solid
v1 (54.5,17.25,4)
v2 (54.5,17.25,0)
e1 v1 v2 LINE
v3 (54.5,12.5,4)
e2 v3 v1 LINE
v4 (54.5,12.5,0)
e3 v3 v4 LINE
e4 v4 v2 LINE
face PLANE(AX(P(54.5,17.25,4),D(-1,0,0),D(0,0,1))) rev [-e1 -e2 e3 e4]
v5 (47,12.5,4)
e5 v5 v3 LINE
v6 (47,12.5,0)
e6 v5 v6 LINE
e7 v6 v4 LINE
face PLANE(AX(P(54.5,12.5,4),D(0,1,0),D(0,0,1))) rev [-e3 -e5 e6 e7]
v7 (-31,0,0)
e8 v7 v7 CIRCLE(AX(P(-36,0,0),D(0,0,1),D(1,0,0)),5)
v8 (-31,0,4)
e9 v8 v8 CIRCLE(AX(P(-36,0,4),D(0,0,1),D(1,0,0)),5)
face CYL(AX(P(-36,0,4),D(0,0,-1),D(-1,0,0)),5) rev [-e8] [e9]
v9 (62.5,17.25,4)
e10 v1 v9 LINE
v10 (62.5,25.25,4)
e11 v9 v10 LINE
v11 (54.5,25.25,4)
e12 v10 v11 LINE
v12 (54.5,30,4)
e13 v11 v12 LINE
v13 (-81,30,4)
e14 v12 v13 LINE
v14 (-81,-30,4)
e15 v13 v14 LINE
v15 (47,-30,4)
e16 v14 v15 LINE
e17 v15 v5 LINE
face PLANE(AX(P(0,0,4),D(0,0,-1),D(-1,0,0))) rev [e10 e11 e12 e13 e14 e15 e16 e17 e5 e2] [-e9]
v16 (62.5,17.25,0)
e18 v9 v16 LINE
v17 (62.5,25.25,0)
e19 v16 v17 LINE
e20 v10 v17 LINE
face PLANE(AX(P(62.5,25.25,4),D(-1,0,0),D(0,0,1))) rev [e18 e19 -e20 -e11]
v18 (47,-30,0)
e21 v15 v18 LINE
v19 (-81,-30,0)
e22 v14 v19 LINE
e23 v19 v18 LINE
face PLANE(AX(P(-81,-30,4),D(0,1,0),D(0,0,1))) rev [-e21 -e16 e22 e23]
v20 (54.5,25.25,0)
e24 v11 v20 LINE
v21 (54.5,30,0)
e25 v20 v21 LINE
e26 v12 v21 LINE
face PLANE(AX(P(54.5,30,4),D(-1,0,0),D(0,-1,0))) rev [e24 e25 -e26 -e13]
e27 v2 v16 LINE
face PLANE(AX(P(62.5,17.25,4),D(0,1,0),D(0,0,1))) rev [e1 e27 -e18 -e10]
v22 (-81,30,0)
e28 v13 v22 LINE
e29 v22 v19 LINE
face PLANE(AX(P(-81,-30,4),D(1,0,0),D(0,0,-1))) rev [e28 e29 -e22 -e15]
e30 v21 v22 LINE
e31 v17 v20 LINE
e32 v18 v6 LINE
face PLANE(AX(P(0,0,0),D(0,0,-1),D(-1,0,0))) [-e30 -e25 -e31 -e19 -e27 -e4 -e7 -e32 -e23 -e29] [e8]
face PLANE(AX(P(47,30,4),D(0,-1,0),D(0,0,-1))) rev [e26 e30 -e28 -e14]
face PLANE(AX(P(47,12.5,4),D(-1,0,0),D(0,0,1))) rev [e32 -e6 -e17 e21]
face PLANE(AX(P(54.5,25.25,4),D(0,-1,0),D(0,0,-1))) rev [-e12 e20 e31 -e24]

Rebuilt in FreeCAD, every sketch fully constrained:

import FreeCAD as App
import Part
import Sketcher

V = App.Vector
Q = App.Units.Quantity


def add_polygon(sketch, points):
    """Adds a closed chain of lines whose ends are joined by coincident constraints."""
    first, n = sketch.GeometryCount, len(points)
    for a, b in zip(points, points[1:] + points[:1]):
        sketch.addGeometry(Part.LineSegment(App.Vector(*a, 0), App.Vector(*b, 0)), False)
    for i in range(n):
        sketch.addConstraint(Sketcher.Constraint("Coincident", first + i, 2, first + (i + 1) % n, 1))

doc = App.newDocument("Part")
body = doc.addObject("PartDesign::Body", "Body")

sketch1 = doc.addObject("Sketcher::SketchObject", "Sketch")
body.addObject(sketch1)
sketch1.AttachmentSupport = (doc.XY_Plane, [""])
sketch1.MapMode = "FlatFace"
add_polygon(sketch1, [(54.5, 30), (-81, 30), (-81, -30), (47, -30), (47, 12.5), (54.5, 12.5), (54.5, 17.2), (62.5, 17.2), (62.5, 25.2), (54.5, 25.2)])
sketch1.addGeometry(Part.Circle(V(-36, 0, 0), V(0, 0, 1), 5), False)
sketch1.addConstraint([
    Sketcher.Constraint("Horizontal", 0),
    Sketcher.Constraint("Vertical", 1),
    Sketcher.Constraint("Horizontal", 2),
    Sketcher.Constraint("Vertical", 3),
    Sketcher.Constraint("Horizontal", 4),
    Sketcher.Constraint("Vertical", 5),
    Sketcher.Constraint("Horizontal", 6),
    Sketcher.Constraint("Vertical", 7),
    Sketcher.Constraint("Horizontal", 8),
    Sketcher.Constraint("Vertical", 9),
    Sketcher.Constraint("PointOnObject", 10, 3, -1),
    Sketcher.Constraint("Vertical", 5, 2, 8, 2),
    Sketcher.Constraint("Equal", 8, 7),
    Sketcher.Constraint("Equal", 5, 9),
    Sketcher.Constraint("Diameter", 10, Q("10 mm")),
    Sketcher.Constraint("DistanceX", 2, 1, 2, 2, Q("128 mm")),
    Sketcher.Constraint("DistanceX", 6, 1, 6, 2, Q("8 mm")),
    Sketcher.Constraint("DistanceY", 1, 2, 1, 1, Q("60 mm")),
    Sketcher.Constraint("DistanceX", 0, 2, 0, 1, Q("135.5 mm")),
    Sketcher.Constraint("DistanceY", 3, 1, 3, 2, Q("42.5 mm")),
    Sketcher.Constraint("DistanceX", 10, 3, -1, 1, Q("36 mm")),
    Sketcher.Constraint("DistanceX", 0, 2, -1, 1, Q("81 mm")),
    Sketcher.Constraint("DistanceY", -1, 1, 0, 2, Q("30 mm")),
])
pad1 = doc.addObject("PartDesign::Pad", "Pad")
body.addObject(pad1)
pad1.Profile = sketch1
pad1.Length = 4

doc.recompute()
